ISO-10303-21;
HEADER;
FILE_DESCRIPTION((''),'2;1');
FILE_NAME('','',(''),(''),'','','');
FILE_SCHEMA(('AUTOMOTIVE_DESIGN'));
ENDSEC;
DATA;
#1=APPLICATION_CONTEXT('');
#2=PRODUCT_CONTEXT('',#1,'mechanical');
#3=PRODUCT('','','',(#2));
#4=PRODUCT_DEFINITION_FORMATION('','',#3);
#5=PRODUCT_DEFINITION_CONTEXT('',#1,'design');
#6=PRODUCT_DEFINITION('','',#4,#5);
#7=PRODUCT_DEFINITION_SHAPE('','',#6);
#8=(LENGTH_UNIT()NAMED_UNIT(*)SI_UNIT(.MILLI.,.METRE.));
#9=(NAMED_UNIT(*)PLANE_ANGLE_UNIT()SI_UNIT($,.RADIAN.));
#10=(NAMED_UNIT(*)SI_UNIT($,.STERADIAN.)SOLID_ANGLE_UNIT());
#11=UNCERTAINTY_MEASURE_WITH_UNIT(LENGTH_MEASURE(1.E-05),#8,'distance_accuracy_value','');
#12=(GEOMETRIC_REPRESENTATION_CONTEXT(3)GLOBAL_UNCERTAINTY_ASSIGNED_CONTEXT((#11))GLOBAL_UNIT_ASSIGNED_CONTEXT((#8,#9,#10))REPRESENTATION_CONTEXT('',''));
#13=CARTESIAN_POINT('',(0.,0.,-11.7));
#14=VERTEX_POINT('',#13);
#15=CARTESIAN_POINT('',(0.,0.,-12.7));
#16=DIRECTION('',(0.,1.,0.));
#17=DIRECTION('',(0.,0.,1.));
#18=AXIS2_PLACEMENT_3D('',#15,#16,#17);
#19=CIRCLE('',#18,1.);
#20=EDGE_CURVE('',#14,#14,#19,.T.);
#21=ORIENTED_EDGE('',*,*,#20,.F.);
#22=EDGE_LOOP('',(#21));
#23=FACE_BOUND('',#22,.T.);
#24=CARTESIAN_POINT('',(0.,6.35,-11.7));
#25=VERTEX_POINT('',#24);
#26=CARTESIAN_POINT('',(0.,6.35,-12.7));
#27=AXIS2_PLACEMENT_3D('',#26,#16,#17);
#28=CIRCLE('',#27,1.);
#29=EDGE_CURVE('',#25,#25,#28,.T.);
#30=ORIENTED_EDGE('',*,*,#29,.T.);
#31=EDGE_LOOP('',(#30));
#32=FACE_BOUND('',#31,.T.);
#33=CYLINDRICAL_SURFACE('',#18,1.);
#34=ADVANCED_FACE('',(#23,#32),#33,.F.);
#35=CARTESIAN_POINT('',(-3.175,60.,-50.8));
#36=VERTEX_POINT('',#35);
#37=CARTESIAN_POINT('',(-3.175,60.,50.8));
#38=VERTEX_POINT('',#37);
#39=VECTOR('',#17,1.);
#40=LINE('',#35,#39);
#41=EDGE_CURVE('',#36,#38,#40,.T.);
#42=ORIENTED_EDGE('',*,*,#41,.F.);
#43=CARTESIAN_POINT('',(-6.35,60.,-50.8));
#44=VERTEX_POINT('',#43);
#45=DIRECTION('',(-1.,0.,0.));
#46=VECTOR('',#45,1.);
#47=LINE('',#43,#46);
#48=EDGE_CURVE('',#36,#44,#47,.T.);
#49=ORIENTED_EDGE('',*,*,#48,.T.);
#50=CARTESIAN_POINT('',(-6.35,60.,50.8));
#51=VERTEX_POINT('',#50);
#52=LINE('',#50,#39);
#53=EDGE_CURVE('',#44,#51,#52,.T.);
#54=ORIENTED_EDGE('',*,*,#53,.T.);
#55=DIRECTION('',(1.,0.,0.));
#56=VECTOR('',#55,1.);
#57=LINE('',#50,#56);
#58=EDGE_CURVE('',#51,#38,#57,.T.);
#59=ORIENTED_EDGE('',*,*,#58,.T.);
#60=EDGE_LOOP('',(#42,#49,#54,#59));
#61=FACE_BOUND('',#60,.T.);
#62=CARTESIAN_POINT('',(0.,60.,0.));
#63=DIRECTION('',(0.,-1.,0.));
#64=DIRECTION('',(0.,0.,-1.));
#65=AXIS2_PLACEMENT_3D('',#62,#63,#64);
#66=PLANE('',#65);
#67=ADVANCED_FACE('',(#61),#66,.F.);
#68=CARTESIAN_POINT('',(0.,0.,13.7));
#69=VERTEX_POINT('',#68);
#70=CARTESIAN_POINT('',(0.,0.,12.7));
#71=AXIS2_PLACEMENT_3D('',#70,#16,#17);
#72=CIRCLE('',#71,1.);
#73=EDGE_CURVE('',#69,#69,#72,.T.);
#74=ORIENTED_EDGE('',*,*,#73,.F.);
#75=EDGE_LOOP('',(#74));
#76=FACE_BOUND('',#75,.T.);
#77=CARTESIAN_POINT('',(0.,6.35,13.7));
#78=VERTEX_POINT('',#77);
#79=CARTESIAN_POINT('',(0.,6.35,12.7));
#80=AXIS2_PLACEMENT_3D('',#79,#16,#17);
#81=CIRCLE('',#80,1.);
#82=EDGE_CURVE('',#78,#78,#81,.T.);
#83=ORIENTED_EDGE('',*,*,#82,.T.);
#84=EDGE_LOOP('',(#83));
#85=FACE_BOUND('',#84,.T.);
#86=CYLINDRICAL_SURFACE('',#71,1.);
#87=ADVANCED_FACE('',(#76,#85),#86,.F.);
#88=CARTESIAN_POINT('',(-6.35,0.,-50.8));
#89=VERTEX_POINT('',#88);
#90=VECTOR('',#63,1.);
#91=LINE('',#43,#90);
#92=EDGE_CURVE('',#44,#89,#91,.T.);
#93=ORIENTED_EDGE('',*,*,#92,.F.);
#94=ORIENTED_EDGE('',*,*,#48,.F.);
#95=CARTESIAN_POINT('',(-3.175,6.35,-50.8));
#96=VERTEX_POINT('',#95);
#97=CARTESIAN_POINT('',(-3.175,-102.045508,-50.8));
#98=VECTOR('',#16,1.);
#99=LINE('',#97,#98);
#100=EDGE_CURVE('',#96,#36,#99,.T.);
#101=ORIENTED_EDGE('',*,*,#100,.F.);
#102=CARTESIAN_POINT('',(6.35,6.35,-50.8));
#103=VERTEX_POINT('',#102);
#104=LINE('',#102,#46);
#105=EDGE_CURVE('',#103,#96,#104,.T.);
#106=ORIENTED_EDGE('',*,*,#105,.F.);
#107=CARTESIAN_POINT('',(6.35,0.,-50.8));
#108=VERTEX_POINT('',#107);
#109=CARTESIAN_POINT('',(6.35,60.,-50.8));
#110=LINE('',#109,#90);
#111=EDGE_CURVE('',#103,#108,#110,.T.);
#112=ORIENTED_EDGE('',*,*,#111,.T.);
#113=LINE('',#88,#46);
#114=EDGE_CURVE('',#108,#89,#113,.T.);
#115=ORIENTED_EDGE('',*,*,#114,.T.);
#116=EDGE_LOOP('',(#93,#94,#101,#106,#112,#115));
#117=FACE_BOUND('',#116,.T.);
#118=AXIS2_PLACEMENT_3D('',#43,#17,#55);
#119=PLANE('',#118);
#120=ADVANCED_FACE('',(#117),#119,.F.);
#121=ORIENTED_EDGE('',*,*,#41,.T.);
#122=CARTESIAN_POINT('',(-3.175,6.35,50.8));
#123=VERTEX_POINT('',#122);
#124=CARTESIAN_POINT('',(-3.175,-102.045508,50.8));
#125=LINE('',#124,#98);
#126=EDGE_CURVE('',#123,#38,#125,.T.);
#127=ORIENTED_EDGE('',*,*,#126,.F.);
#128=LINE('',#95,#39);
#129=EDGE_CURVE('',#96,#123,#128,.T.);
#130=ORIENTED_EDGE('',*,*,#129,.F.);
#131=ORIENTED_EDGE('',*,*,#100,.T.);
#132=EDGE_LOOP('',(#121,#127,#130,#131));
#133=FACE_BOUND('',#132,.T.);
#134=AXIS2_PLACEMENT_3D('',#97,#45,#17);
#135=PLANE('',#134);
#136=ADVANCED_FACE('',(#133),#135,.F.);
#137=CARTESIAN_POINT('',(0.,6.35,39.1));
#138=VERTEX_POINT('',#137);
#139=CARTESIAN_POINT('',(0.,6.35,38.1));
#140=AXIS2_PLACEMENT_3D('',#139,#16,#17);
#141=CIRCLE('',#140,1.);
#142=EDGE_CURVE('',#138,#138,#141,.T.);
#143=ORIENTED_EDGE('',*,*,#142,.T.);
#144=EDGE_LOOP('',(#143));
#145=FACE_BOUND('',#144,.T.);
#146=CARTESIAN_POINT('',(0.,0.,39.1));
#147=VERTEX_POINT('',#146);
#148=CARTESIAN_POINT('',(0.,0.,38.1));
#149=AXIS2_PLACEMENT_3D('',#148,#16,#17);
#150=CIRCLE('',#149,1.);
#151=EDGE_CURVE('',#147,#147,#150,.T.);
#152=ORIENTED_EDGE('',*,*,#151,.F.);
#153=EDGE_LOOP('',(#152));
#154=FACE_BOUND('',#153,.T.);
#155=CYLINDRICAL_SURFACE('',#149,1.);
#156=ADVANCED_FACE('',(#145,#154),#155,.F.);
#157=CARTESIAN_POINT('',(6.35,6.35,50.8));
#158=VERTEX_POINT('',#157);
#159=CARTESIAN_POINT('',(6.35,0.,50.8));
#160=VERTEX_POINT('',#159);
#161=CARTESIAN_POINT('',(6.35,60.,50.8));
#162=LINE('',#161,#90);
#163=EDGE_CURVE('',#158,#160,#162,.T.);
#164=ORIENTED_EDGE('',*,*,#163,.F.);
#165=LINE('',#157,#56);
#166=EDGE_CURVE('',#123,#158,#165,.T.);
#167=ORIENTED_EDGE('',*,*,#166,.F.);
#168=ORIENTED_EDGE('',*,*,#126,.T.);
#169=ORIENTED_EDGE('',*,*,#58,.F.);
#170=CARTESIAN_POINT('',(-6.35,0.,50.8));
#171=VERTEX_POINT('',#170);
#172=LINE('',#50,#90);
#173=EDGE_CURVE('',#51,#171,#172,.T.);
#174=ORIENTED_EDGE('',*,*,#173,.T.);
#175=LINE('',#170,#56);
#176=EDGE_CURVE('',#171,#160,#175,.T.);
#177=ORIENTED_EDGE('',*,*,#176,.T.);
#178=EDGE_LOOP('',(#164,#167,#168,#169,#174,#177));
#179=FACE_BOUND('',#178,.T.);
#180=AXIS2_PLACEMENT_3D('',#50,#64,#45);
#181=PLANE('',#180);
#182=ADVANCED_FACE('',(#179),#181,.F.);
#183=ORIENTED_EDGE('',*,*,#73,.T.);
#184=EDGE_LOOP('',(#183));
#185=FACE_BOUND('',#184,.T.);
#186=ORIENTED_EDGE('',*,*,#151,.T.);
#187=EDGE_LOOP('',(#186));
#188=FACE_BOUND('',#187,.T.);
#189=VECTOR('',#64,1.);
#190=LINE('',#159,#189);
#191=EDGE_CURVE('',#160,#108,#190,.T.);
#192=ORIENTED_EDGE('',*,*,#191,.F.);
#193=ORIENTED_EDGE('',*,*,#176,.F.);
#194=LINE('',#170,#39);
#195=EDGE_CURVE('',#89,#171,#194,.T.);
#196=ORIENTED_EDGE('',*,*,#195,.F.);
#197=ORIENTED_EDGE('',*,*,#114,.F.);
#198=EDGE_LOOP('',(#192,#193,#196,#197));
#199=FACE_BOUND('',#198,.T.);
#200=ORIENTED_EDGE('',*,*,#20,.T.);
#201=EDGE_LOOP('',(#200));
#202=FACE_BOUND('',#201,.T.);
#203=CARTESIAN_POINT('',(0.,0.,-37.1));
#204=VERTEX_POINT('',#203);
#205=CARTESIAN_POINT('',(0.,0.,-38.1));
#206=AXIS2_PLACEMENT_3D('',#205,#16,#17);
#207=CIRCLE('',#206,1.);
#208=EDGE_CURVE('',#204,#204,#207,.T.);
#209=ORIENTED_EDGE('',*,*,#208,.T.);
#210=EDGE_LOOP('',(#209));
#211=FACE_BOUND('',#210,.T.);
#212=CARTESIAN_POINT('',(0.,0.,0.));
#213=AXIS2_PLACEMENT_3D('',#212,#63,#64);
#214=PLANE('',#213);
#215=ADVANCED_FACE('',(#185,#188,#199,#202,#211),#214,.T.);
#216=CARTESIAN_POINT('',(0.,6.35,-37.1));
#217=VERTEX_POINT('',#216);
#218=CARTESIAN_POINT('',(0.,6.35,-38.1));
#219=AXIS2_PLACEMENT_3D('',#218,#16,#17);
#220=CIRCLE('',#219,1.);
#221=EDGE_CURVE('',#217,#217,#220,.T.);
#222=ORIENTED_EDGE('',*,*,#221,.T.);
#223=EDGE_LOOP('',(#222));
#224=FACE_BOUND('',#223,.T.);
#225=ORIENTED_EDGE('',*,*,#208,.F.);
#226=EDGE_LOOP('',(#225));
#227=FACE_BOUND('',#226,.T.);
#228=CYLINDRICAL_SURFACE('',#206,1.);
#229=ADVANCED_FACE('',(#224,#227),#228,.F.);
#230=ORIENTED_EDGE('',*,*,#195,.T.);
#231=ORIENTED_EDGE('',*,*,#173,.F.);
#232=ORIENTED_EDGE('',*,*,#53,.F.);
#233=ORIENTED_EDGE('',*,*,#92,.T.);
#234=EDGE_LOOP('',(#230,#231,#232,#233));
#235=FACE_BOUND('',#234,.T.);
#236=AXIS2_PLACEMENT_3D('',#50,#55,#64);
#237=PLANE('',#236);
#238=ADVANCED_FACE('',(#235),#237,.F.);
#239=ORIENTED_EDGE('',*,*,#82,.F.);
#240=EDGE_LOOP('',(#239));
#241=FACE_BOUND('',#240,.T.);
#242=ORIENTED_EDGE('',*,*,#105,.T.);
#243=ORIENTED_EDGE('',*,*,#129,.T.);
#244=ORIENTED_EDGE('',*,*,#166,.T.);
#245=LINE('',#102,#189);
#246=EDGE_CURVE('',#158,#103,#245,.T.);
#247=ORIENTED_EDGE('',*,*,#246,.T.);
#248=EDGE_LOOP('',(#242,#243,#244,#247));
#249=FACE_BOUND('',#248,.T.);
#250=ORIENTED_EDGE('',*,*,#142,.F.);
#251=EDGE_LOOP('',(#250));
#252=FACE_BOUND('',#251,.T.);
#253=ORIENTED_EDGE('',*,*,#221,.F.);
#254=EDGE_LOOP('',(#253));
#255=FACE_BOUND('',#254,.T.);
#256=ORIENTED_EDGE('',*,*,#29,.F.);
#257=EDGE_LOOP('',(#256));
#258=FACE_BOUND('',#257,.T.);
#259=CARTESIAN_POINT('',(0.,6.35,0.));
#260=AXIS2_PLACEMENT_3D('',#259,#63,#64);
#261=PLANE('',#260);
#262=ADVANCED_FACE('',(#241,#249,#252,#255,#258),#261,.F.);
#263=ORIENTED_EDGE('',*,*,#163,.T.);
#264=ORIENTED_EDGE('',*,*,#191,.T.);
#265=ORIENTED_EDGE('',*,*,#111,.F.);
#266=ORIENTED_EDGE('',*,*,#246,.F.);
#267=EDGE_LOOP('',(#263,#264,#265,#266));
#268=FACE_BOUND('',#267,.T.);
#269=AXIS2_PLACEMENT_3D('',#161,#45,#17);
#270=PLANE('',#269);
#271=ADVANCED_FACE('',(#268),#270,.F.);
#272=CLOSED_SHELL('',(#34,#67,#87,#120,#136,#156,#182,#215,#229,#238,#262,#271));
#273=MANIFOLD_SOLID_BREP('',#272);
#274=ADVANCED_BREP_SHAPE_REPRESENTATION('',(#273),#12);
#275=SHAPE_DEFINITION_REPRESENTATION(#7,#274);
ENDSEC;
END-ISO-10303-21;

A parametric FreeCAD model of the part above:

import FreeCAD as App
import Part
import Sketcher
Q = App.Units.Quantity

doc = App.newDocument("Part")
body = doc.addObject("PartDesign::Body", "Body")

# Sketch on XZ plane
sketch1 = doc.addObject("Sketcher::SketchObject", "Sketch")
body.addObject(sketch1)
sketch1.AttachmentSupport = (doc.XZ_Plane, [""])
sketch1.MapMode = "FlatFace"
sketch1.addGeometry(Part.LineSegment(App.Vector(-6, -51, 0), App.Vector(-6, 51, 0)), False)
sketch1.addGeometry(Part.LineSegment(App.Vector(-6, 51, 0), App.Vector(6, 51, 0)), False)
sketch1.addGeometry(Part.LineSegment(App.Vector(6, 51, 0), App.Vector(6, -51, 0)), False)
sketch1.addGeometry(Part.LineSegment(App.Vector(6, -51, 0), App.Vector(-6, -51, 0)), False)
sketch1.addConstraint(Sketcher.Constraint("Coincident", 0, 2, 1, 1))
sketch1.addConstraint(Sketcher.Constraint("Coincident", 1, 2, 2, 1))
sketch1.addConstraint(Sketcher.Constraint("Coincident", 2, 2, 3, 1))
sketch1.addConstraint(Sketcher.Constraint("Coincident", 3, 2, 0, 1))
sketch1.addConstraint(Sketcher.Constraint("Vertical", 0))
sketch1.addConstraint(Sketcher.Constraint("Horizontal", 1))
sketch1.addConstraint(Sketcher.Constraint("Vertical", 2))
sketch1.addConstraint(Sketcher.Constraint("Horizontal", 3))
sketch1.addConstraint(Sketcher.Constraint("Symmetric", 0, 2, 2, 2, -1, 1))
sketch1.addConstraint(Sketcher.Constraint("DistanceY", 0, 1, 0, 2, Q("4 in")))
sketch1.addConstraint(Sketcher.Constraint("DistanceX", 1, 1, 1, 2, Q("0.5 in")))
pad1 = doc.addObject("PartDesign::Pad", "Pad")
body.addObject(pad1)
pad1.Profile = sketch1
pad1.Length = 60
pad1.Reversed = True

# Sketch on XZ plane
sketch2 = doc.addObject("Sketcher::SketchObject", "Sketch001")
body.addObject(sketch2)
sketch2.AttachmentSupport = (doc.XZ_Plane, [""])
sketch2.MapMode = "FlatFace"
sketch2.AttachmentOffset = App.Placement(App.Vector(0, 0, -60), App.Rotation())
sketch2.addGeometry(Part.LineSegment(App.Vector(-3, -51, 0), App.Vector(-3, 51, 0)), False)
sketch2.addGeometry(Part.LineSegment(App.Vector(-3, 51, 0), App.Vector(6, 51, 0)), False)
sketch2.addGeometry(Part.LineSegment(App.Vector(6, 51, 0), App.Vector(6, -51, 0)), False)
sketch2.addGeometry(Part.LineSegment(App.Vector(6, -51, 0), App.Vector(-3, -51, 0)), False)
sketch2.addConstraint(Sketcher.Constraint("Coincident", 0, 2, 1, 1))
sketch2.addConstraint(Sketcher.Constraint("Coincident", 1, 2, 2, 1))
sketch2.addConstraint(Sketcher.Constraint("Coincident", 2, 2, 3, 1))
sketch2.addConstraint(Sketcher.Constraint("Coincident", 3, 2, 0, 1))
sketch2.addConstraint(Sketcher.Constraint("Vertical", 0))
sketch2.addConstraint(Sketcher.Constraint("Horizontal", 1))
sketch2.addConstraint(Sketcher.Constraint("Vertical", 2))
sketch2.addConstraint(Sketcher.Constraint("Horizontal", 3))
sketch2.addConstraint(Sketcher.Constraint("DistanceY", 0, 1, 0, 2, Q("4 in")))
sketch2.addConstraint(Sketcher.Constraint("DistanceY", -1, 1, 0, 2, Q("2 in")))
sketch2.addConstraint(Sketcher.Constraint("DistanceX", 1, 1, 1, 2, Q("0.375 in")))
sketch2.addConstraint(Sketcher.Constraint("DistanceX", -1, 1, 1, 2, Q("0.25 in")))
pocket1 = doc.addObject("PartDesign::Pocket", "Pocket")
body.addObject(pocket1)
pocket1.Profile = sketch2
pocket1.Length = 53.65
pocket1.Reversed = True

# Sketch on XZ plane
sketch3 = doc.addObject("Sketcher::SketchObject", "Sketch002")
body.addObject(sketch3)
sketch3.AttachmentSupport = (doc.XZ_Plane, [""])
sketch3.MapMode = "FlatFace"
sketch3.AttachmentOffset = App.Placement(App.Vector(0, 0, -0.25 * 25.4), App.Rotation())
sketch3.addGeometry(Part.Circle(App.Vector(0, -38.1, 0), App.Vector(0, 0, 1), 1), False)
sketch3.addGeometry(Part.Circle(App.Vector(0, -12.7, 0), App.Vector(0, 0, 1), 1), False)
sketch3.addGeometry(Part.Circle(App.Vector(0, 12.7, 0), App.Vector(0, 0, 1), 1), False)
sketch3.addGeometry(Part.Circle(App.Vector(0, 38.1, 0), App.Vector(0, 0, 1), 1), False)
sketch3.addConstraint(Sketcher.Constraint("Equal", 0, 1))
sketch3.addConstraint(Sketcher.Constraint("Equal", 1, 2))
sketch3.addConstraint(Sketcher.Constraint("Equal", 2, 3))
sketch3.addConstraint(Sketcher.Constraint("Symmetric", 1, 3, 2, 3, -1, 1))
sketch3.addConstraint(Sketcher.Constraint("Symmetric", 0, 3, 3, 3, -1, 1))
sketch3.addConstraint(Sketcher.Constraint("PointOnObject", 0, 3, -2))
sketch3.addConstraint(Sketcher.Constraint("PointOnObject", 1, 3, -2))
sketch3.addConstraint(Sketcher.Constraint("DistanceY", 0, 3, 1, 3, Q("1 in")))
sketch3.addConstraint(Sketcher.Constraint("DistanceY", 1, 3, 2, 3, Q("1 in")))
sketch3.addConstraint(Sketcher.Constraint("Diameter", 0, Q("2 mm")))
pocket2 = doc.addObject("PartDesign::Pocket", "Pocket001")
body.addObject(pocket2)
pocket2.Profile = sketch3
pocket2.Type = "ThroughAll"
pocket2.Reversed = True

doc.recompute()
